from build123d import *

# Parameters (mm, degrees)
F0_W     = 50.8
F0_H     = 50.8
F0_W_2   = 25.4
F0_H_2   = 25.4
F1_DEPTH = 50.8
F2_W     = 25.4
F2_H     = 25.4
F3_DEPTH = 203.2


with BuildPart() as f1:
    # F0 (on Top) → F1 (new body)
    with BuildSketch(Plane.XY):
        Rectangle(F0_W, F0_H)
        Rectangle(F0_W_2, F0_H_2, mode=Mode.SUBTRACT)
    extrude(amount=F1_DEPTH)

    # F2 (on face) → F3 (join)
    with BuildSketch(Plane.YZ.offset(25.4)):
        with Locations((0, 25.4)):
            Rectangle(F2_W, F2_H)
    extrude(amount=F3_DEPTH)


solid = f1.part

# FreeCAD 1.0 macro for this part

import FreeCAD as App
import Part
import Sketcher
Q = App.Units.Quantity

doc = App.newDocument("Part")
body = doc.addObject("PartDesign::Body", "Body")

# Sketch on XY plane
sketch1 = doc.addObject("Sketcher::SketchObject", "Sketch")
body.addObject(sketch1)
sketch1.AttachmentSupport = (doc.XY_Plane, [""])
sketch1.MapMode = "FlatFace"
sketch1.addGeometry([
    Part.LineSegment(App.Vector(-25, 25, 0), App.Vector(-25, -25, 0)),  # 0
    Part.LineSegment(App.Vector(-25, -25, 0), App.Vector(25, -25, 0)),  # 1
    Part.LineSegment(App.Vector(25, -25, 0), App.Vector(25, 25, 0)),  # 2
    Part.LineSegment(App.Vector(25, 25, 0), App.Vector(-25, 25, 0)),  # 3
    Part.LineSegment(App.Vector(13, -13, 0), App.Vector(-13, -13, 0)),  # 4
    Part.LineSegment(App.Vector(-13, -13, 0), App.Vector(-13, 13, 0)),  # 5
    Part.LineSegment(App.Vector(-13, 13, 0), App.Vector(13, 13, 0)),  # 6
    Part.LineSegment(App.Vector(13, 13, 0), App.Vector(13, -13, 0)),  # 7
], False)
sketch1.addConstraint([
    Sketcher.Constraint("Coincident", 0, 2, 1, 1),
    Sketcher.Constraint("Coincident", 1, 2, 2, 1),
    Sketcher.Constraint("Coincident", 2, 2, 3, 1),
    Sketcher.Constraint("Coincident", 3, 2, 0, 1),
    Sketcher.Constraint("Coincident", 4, 2, 5, 1),
    Sketcher.Constraint("Coincident", 5, 2, 6, 1),
    Sketcher.Constraint("Coincident", 6, 2, 7, 1),
    Sketcher.Constraint("Coincident", 7, 2, 4, 1),
    Sketcher.Constraint("Vertical", 0),
    Sketcher.Constraint("Horizontal", 1),
    Sketcher.Constraint("Vertical", 2),
    Sketcher.Constraint("Horizontal", 3),
    Sketcher.Constraint("Horizontal", 4),
    Sketcher.Constraint("Vertical", 5),
    Sketcher.Constraint("Horizontal", 6),
    Sketcher.Constraint("Vertical", 7),
    Sketcher.Constraint("Symmetric", 0, 2, 2, 2, -1, 1),
    Sketcher.Constraint("Symmetric", 4, 2, 6, 2, -1, 1),
    Sketcher.Constraint("Equal", 3, 0),
    Sketcher.Constraint("Equal", 6, 5),
    Sketcher.Constraint("DistanceX", 1, 1, 1, 2, Q("2 in")),
    Sketcher.Constraint("DistanceX", 4, 2, 4, 1, Q("1 in")),
])
pad1 = doc.addObject("PartDesign::Pad", "Pad")
body.addObject(pad1)
pad1.Profile = sketch1
pad1.Length = Q("2 in")

# Sketch on YZ plane
sketch2 = doc.addObject("Sketcher::SketchObject", "Sketch001")
body.addObject(sketch2)
sketch2.AttachmentSupport = (doc.YZ_Plane, [""])
sketch2.MapMode = "FlatFace"
sketch2.AttachmentOffset = App.Placement(App.Vector(0, 0, 1 * 25.4), App.Rotation())
sketch2.addGeometry([
    Part.LineSegment(App.Vector(-13, 38, 0), App.Vector(-13, 13, 0)),
    Part.LineSegment(App.Vector(-13, 13, 0), App.Vector(13, 13, 0)),
    Part.LineSegment(App.Vector(13, 13, 0), App.Vector(13, 38, 0)),
    Part.LineSegment(App.Vector(13, 38, 0), App.Vector(-13, 38, 0)),
], False)
sketch2.addConstraint([
    Sketcher.Constraint("Coincident", 0, 2, 1, 1),
    Sketcher.Constraint("Coincident", 1, 2, 2, 1),
    Sketcher.Constraint("Coincident", 2, 2, 3, 1),
    Sketcher.Constraint("Coincident", 3, 2, 0, 1),
    Sketcher.Constraint("Vertical", 0),
    Sketcher.Constraint("Horizontal", 1),
    Sketcher.Constraint("Vertical", 2),
    Sketcher.Constraint("Horizontal", 3),
    Sketcher.Constraint("Equal", 3, 0),
    Sketcher.Constraint("DistanceX", 1, 1, 1, 2, Q("1 in")),
    Sketcher.Constraint("DistanceX", 0, 2, -1, 1, Q("0.5 in")),
    Sketcher.Constraint("DistanceY", -1, 1, 0, 2, Q("0.5 in")),
])
pad2 = doc.addObject("PartDesign::Pad", "Pad001")
body.addObject(pad2)
pad2.Profile = sketch2
pad2.Length = Q("8 in")

doc.recompute()
